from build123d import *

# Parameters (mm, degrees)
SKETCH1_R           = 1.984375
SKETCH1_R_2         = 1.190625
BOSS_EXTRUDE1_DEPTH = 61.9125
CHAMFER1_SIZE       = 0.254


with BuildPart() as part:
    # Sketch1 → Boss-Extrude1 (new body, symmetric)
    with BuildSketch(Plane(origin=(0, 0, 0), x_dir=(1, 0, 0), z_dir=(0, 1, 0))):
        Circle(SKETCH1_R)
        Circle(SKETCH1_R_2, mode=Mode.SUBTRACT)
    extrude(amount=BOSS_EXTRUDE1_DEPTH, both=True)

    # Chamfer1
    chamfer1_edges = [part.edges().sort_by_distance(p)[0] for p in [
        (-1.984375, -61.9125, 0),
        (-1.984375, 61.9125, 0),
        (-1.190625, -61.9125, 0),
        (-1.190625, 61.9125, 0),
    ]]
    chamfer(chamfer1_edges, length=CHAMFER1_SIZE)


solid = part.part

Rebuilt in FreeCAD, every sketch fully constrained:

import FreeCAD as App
import Part
import Sketcher
Q = App.Units.Quantity


def edges_at(feature, points):
    """Names of the edges that pass closest to the given points."""
    edges = feature.Shape.Edges
    near = lambda p: min(range(len(edges)), key=lambda i: edges[i].distToShape(Part.Vertex(*p))[0])
    return sorted({f"Edge{near(p) + 1}" for p in points})

doc = App.newDocument("Part")
body = doc.addObject("PartDesign::Body", "Body")

# Sketch on XZ plane
sketch1 = doc.addObject("Sketcher::SketchObject", "Sketch")
body.addObject(sketch1)
sketch1.AttachmentSupport = (doc.XZ_Plane, [""])
sketch1.MapMode = "FlatFace"
sketch1.addGeometry(Part.Circle(App.Vector(0, 0, 0), App.Vector(0, 0, 1), 2), False)
sketch1.addGeometry(Part.Circle(App.Vector(0, 0, 0), App.Vector(0, 0, 1), 1.2), False)
sketch1.addConstraint(Sketcher.Constraint("Coincident", 0, 3, -1, 1))
sketch1.addConstraint(Sketcher.Constraint("Coincident", 1, 3, -1, 1))
sketch1.addConstraint(Sketcher.Constraint("Diameter", 0, Q("0.15625 in")))
sketch1.addConstraint(Sketcher.Constraint("Diameter", 1, Q("0.09375 in")))
pad1 = doc.addObject("PartDesign::Pad", "Pad")
body.addObject(pad1)
pad1.Profile = sketch1
pad1.Length = Q("4.875 in")
pad1.Midplane = True
doc.recompute()

chamfer = doc.addObject("PartDesign::Chamfer", "Chamfer")
body.addObject(chamfer)
chamfer.Base = (pad1, edges_at(pad1, [
    (-1.984, -61.913, 0),
    (-1.984, 61.913, 0),
    (-1.191, -61.913, 0),
    (-1.191, 61.913, 0),
]))
chamfer.Size = Q("0.01 in")

doc.recompute()
